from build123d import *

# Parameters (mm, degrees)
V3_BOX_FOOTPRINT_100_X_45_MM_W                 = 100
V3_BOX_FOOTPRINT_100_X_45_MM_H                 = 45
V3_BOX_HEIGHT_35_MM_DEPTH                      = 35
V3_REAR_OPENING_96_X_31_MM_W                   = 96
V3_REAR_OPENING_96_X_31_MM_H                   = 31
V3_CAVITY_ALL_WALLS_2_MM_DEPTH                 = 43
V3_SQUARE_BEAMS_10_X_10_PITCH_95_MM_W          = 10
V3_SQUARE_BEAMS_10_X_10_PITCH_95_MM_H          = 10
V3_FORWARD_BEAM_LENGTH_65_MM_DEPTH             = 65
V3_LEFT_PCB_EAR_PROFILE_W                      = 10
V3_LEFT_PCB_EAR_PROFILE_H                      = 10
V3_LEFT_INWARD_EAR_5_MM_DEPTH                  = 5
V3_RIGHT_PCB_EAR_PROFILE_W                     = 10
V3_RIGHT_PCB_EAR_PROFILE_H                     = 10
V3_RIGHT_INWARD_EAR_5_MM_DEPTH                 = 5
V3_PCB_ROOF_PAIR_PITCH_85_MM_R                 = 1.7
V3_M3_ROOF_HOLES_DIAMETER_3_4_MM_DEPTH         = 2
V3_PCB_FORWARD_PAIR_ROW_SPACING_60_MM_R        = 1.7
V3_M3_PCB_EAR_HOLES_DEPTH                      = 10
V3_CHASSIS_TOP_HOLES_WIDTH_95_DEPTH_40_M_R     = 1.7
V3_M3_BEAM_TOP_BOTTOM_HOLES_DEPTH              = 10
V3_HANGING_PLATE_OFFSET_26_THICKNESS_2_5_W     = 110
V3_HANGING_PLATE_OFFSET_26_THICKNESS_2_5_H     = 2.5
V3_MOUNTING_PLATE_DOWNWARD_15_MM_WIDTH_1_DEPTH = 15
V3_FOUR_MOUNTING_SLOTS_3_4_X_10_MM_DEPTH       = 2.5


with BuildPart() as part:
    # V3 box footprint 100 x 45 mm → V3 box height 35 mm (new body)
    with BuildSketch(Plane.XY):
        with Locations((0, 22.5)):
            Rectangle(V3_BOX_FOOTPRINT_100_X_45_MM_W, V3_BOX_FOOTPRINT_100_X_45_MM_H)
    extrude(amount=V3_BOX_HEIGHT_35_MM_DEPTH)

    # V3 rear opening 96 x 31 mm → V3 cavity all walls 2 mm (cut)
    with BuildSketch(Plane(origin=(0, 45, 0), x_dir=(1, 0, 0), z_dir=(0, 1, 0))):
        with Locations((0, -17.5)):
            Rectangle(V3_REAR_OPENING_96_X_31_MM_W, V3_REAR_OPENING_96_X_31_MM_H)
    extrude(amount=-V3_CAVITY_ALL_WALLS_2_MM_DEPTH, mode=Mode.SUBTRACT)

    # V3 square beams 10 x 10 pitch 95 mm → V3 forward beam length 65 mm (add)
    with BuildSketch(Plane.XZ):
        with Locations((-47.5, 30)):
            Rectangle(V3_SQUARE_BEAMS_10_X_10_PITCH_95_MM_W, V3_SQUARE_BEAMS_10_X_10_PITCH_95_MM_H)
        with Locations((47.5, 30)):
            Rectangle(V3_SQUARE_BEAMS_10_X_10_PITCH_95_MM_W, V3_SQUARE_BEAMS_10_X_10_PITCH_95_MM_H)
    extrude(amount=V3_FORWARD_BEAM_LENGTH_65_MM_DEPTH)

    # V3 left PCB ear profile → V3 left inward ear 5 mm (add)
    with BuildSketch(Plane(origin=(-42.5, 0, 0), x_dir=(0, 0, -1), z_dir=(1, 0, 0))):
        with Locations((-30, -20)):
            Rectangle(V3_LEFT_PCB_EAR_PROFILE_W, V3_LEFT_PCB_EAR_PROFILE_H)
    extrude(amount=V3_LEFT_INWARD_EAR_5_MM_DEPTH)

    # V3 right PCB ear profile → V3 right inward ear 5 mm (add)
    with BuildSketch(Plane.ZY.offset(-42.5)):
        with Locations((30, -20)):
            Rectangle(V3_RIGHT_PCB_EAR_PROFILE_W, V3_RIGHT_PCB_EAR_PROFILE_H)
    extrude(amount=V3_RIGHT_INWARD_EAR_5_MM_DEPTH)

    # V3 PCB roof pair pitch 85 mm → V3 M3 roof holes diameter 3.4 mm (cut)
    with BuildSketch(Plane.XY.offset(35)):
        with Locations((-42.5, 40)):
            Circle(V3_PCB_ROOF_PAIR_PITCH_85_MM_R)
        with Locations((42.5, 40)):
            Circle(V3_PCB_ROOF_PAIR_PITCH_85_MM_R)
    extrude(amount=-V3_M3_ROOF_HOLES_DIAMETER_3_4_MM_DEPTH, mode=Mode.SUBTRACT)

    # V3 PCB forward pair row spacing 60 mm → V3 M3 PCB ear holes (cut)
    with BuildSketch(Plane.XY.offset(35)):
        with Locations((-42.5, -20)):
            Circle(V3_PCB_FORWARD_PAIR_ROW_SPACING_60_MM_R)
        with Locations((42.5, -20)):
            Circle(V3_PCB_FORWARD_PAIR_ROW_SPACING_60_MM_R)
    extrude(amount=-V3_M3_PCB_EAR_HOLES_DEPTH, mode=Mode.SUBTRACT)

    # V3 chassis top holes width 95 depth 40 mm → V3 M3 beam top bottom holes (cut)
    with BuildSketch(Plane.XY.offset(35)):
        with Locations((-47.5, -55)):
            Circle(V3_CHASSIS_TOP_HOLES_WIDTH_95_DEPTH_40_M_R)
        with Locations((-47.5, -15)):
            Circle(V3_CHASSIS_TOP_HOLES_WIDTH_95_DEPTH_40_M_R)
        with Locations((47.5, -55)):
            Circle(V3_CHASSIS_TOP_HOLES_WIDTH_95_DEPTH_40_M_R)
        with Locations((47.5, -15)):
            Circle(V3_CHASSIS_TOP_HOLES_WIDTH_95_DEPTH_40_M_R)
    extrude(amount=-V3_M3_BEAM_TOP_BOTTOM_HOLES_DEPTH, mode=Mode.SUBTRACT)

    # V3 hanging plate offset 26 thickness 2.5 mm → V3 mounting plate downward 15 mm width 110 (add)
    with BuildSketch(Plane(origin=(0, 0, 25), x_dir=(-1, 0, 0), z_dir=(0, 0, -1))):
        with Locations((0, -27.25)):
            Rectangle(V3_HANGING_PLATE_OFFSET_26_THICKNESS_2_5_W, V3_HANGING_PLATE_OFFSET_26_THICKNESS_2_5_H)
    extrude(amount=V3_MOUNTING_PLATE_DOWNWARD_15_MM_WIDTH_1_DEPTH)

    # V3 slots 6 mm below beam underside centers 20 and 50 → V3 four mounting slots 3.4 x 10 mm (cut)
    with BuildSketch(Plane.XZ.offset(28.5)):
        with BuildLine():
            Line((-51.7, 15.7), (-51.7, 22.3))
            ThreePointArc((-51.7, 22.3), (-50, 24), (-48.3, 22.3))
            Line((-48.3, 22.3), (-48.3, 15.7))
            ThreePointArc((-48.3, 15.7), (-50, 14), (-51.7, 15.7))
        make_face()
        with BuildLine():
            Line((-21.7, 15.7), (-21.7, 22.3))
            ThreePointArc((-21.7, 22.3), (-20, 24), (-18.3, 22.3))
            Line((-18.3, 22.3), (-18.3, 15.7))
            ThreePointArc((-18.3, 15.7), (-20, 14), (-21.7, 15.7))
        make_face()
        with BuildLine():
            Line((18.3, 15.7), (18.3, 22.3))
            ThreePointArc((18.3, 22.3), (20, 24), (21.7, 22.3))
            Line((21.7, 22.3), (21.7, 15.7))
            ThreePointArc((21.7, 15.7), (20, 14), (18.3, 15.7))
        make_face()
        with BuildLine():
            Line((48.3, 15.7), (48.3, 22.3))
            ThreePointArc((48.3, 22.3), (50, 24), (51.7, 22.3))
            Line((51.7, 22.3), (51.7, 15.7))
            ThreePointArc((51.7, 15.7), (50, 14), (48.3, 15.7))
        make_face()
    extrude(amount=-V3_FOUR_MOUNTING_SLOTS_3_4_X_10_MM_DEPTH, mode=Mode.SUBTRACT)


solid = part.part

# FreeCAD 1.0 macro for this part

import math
import FreeCAD as App
import Part
import Sketcher


def add_polygon(sketch, points):
    """Adds a closed chain of lines whose ends are joined by coincident constraints."""
    first, n = sketch.GeometryCount, len(points)
    for a, b in zip(points, points[1:] + points[:1]):
        sketch.addGeometry(Part.LineSegment(App.Vector(*a, 0), App.Vector(*b, 0)), False)
    for i in range(n):
        sketch.addConstraint(Sketcher.Constraint("Coincident", first + i, 2, first + (i + 1) % n, 1))

doc = App.newDocument("Part")
body = doc.addObject("PartDesign::Body", "Body")

sketch1 = body.newObject("Sketcher::SketchObject", "Sketch")
sketch1.AttachmentSupport = (doc.getObject("XY_Plane"), [""])
sketch1.MapMode = "FlatFace"
add_polygon(sketch1, [(-50, 45), (-50, 0), (50, 0), (50, 45)])
sketch1.addConstraint([
    Sketcher.Constraint("Vertical", 0),
    Sketcher.Constraint("Horizontal", 1),
    Sketcher.Constraint("Vertical", 2),
    Sketcher.Constraint("Horizontal", 3),
    Sketcher.Constraint("Symmetric", 0, 2, 1, 2, -1, 1),
    Sketcher.Constraint("DistanceX", 1, 1, 1, 2, 100.0),
    Sketcher.Constraint("DistanceY", 0, 2, 0, 1, 45.0),
])
pad1 = body.newObject("PartDesign::Pad", "Pad")
pad1.Profile = sketch1
pad1.Length = 35

sketch2 = body.newObject("Sketcher::SketchObject", "Sketch001")
sketch2.AttachmentSupport = (doc.getObject("XZ_Plane"), [""])
sketch2.MapMode = "FlatFace"
sketch2.AttachmentOffset = App.Placement(App.Vector(0, 0, -45), App.Rotation())
add_polygon(sketch2, [(-48, 2), (-48, 33), (48, 33), (48, 2)])
sketch2.addConstraint([
    Sketcher.Constraint("Vertical", 0),
    Sketcher.Constraint("Horizontal", 1),
    Sketcher.Constraint("Vertical", 2),
    Sketcher.Constraint("Horizontal", 3),
    Sketcher.Constraint("DistanceX", 1, 1, 1, 2, 96.0),
    Sketcher.Constraint("DistanceY", 0, 1, 0, 2, 31.0),
    Sketcher.Constraint("DistanceX", 0, 2, -1, 1, 48.0),
    Sketcher.Constraint("DistanceY", -1, 1, 0, 2, 33.0),
])
pocket1 = body.newObject("PartDesign::Pocket", "Pocket")
pocket1.Profile = sketch2
pocket1.Length = 43
pocket1.Reversed = True

sketch3 = body.newObject("Sketcher::SketchObject", "Sketch002")
sketch3.AttachmentSupport = (doc.getObject("XZ_Plane"), [""])
sketch3.MapMode = "FlatFace"
add_polygon(sketch3, [(-52, 35), (-52, 25), (-42, 25), (-42, 35)])
add_polygon(sketch3, [(42, 35), (42, 25), (52, 25), (52, 35)])
sketch3.addConstraint([
    Sketcher.Constraint("Vertical", 0),
    Sketcher.Constraint("Horizontal", 1),
    Sketcher.Constraint("Vertical", 2),
    Sketcher.Constraint("Horizontal", 3),
    Sketcher.Constraint("Vertical", 4),
    Sketcher.Constraint("Horizontal", 5),
    Sketcher.Constraint("Vertical", 6),
    Sketcher.Constraint("Horizontal", 7),
    Sketcher.Constraint("Symmetric", 1, 2, 4, 2, -2),
    Sketcher.Constraint("Symmetric", 3, 2, 6, 2, -2),
    Sketcher.Constraint("Equal", 7, 0),
    Sketcher.Constraint("DistanceX", 1, 1, 1, 2, 10.0),
    Sketcher.Constraint("DistanceY", -1, 1, 0, 2, 25.0),
    Sketcher.Constraint("DistanceX", 1, 2, 4, 2, 85.0),
])
pad2 = body.newObject("PartDesign::Pad", "Pad001")
pad2.Profile = sketch3
pad2.Length = 65

sketch4 = body.newObject("Sketcher::SketchObject", "Sketch003")
sketch4.AttachmentSupport = (doc.getObject("YZ_Plane"), [""])
sketch4.MapMode = "FlatFace"
sketch4.AttachmentOffset = App.Placement(App.Vector(0, 0, -42.5), App.Rotation())
add_polygon(sketch4, [(-15, 35), (-25, 35), (-25, 25), (-15, 25)])
sketch4.addConstraint([
    Sketcher.Constraint("Horizontal", 0),
    Sketcher.Constraint("Vertical", 1),
    Sketcher.Constraint("Horizontal", 2),
    Sketcher.Constraint("Vertical", 3),
    Sketcher.Constraint("Equal", 2, 1),
    Sketcher.Constraint("DistanceX", 0, 2, 0, 1, 10.0),
    Sketcher.Constraint("DistanceX", 0, 2, -1, 1, 25.0),
    Sketcher.Constraint("DistanceY", -1, 1, 0, 2, 35.0),
])
pad3 = body.newObject("PartDesign::Pad", "Pad002")
pad3.Profile = sketch4
pad3.Length = 5

sketch5 = body.newObject("Sketcher::SketchObject", "Sketch004")
sketch5.AttachmentSupport = (doc.getObject("YZ_Plane"), [""])
sketch5.MapMode = "FlatFace"
sketch5.AttachmentOffset = App.Placement(App.Vector(0, 0, 42.5), App.Rotation())
add_polygon(sketch5, [(-15, 25), (-25, 25), (-25, 35), (-15, 35)])
sketch5.addConstraint([
    Sketcher.Constraint("Horizontal", 0),
    Sketcher.Constraint("Vertical", 1),
    Sketcher.Constraint("Horizontal", 2),
    Sketcher.Constraint("Vertical", 3),
    Sketcher.Constraint("Equal", 2, 1),
    Sketcher.Constraint("DistanceX", 0, 2, 0, 1, 10.0),
    Sketcher.Constraint("DistanceX", 0, 2, -1, 1, 25.0),
    Sketcher.Constraint("DistanceY", -1, 1, 0, 2, 25.0),
])
pad4 = body.newObject("PartDesign::Pad", "Pad003")
pad4.Profile = sketch5
pad4.Length = 5
pad4.Reversed = True

sketch6 = body.newObject("Sketcher::SketchObject", "Sketch005")
sketch6.AttachmentSupport = (doc.getObject("XY_Plane"), [""])
sketch6.MapMode = "FlatFace"
sketch6.AttachmentOffset = App.Placement(App.Vector(0, 0, 35), App.Rotation())
sketch6.addGeometry([
    Part.Circle(App.Vector(-42.5, 40, 0), App.Vector(0, 0, 1), 1.7),
    Part.Circle(App.Vector(42.5, 40, 0), App.Vector(0, 0, 1), 1.7),
], False)
sketch6.addConstraint([
    Sketcher.Constraint("Equal", 0, 1),
    Sketcher.Constraint("Symmetric", 0, 3, 1, 3, -2),
    Sketcher.Constraint("Diameter", 0, 3.4),
    Sketcher.Constraint("DistanceY", -1, 1, 0, 3, 40.0),
    Sketcher.Constraint("DistanceX", 0, 3, 1, 3, 85.0),
])
pocket2 = body.newObject("PartDesign::Pocket", "Pocket001")
pocket2.Profile = sketch6
pocket2.Length = 2

sketch7 = body.newObject("Sketcher::SketchObject", "Sketch006")
sketch7.AttachmentSupport = (doc.getObject("XY_Plane"), [""])
sketch7.MapMode = "FlatFace"
sketch7.AttachmentOffset = App.Placement(App.Vector(0, 0, 35), App.Rotation())
sketch7.addGeometry([
    Part.Circle(App.Vector(-42.5, -20, 0), App.Vector(0, 0, 1), 1.7),
    Part.Circle(App.Vector(42.5, -20, 0), App.Vector(0, 0, 1), 1.7),
], False)
sketch7.addConstraint([
    Sketcher.Constraint("Equal", 0, 1),
    Sketcher.Constraint("Symmetric", 0, 3, 1, 3, -2),
    Sketcher.Constraint("Diameter", 0, 3.4),
    Sketcher.Constraint("DistanceY", 0, 3, -1, 1, 20.0),
    Sketcher.Constraint("DistanceX", 0, 3, 1, 3, 85.0),
])
pocket3 = body.newObject("PartDesign::Pocket", "Pocket002")
pocket3.Profile = sketch7
pocket3.Length = 10

sketch8 = body.newObject("Sketcher::SketchObject", "Sketch007")
sketch8.AttachmentSupport = (doc.getObject("XY_Plane"), [""])
sketch8.MapMode = "FlatFace"
sketch8.AttachmentOffset = App.Placement(App.Vector(0, 0, 35), App.Rotation())
sketch8.addGeometry([
    Part.Circle(App.Vector(-47.5, -55, 0), App.Vector(0, 0, 1), 1.7),
    Part.Circle(App.Vector(-47.5, -15, 0), App.Vector(0, 0, 1), 1.7),
    Part.Circle(App.Vector(47.5, -55, 0), App.Vector(0, 0, 1), 1.7),
    Part.Circle(App.Vector(47.5, -15, 0), App.Vector(0, 0, 1), 1.7),
], False)
sketch8.addConstraint([
    Sketcher.Constraint("Equal", 0, 1),
    Sketcher.Constraint("Equal", 1, 2),
    Sketcher.Constraint("Equal", 2, 3),
    Sketcher.Constraint("Symmetric", 0, 3, 2, 3, -2),
    Sketcher.Constraint("Symmetric", 1, 3, 3, 3, -2),
    Sketcher.Constraint("Vertical", 0, 3, 1, 3),
    Sketcher.Constraint("Diameter", 0, 3.4),
    Sketcher.Constraint("DistanceY", 0, 3, -1, 1, 55.0),
    Sketcher.Constraint("DistanceY", 1, 3, -1, 1, 15.0),
    Sketcher.Constraint("DistanceX", 0, 3, 2, 3, 95.0),
])
pocket4 = body.newObject("PartDesign::Pocket", "Pocket003")
pocket4.Profile = sketch8
pocket4.Length = 10

sketch9 = body.newObject("Sketcher::SketchObject", "Sketch008")
sketch9.AttachmentSupport = (doc.getObject("XY_Plane"), [""])
sketch9.MapMode = "FlatFace"
sketch9.AttachmentOffset = App.Placement(App.Vector(0, 0, 25), App.Rotation())
add_polygon(sketch9, [(55, -26), (55, -28.5), (-55, -28.5), (-55, -26)])
sketch9.addConstraint([
    Sketcher.Constraint("Vertical", 0),
    Sketcher.Constraint("Horizontal", 1),
    Sketcher.Constraint("Vertical", 2),
    Sketcher.Constraint("Horizontal", 3),
    Sketcher.Constraint("DistanceX", 1, 2, 1, 1, 110.0),
    Sketcher.Constraint("DistanceY", 0, 2, 0, 1, 2.5),
    Sketcher.Constraint("DistanceX", -1, 1, 0, 2, 55.0),
    Sketcher.Constraint("DistanceY", 2, 2, -1, 1, 26.0),
])
pad5 = body.newObject("PartDesign::Pad", "Pad004")
pad5.Profile = sketch9
pad5.Length = 15
pad5.Reversed = True

sketch10 = body.newObject("Sketcher::SketchObject", "Sketch009")
sketch10.AttachmentSupport = (doc.getObject("XZ_Plane"), [""])
sketch10.MapMode = "FlatFace"
sketch10.AttachmentOffset = App.Placement(App.Vector(0, 0, 28.5), App.Rotation())
sketch10.addGeometry([
    Part.LineSegment(App.Vector(-51.7, 22.3, 0), App.Vector(-51.7, 15.7, 0)),
    Part.ArcOfCircle(Part.Circle(App.Vector(-50, 15.7, 0), App.Vector(0, 0, 1), 1.7), math.radians(180), math.radians(360)),
    Part.LineSegment(App.Vector(-48.3, 15.7, 0), App.Vector(-48.3, 22.3, 0)),
    Part.ArcOfCircle(Part.Circle(App.Vector(-50, 22.3, 0), App.Vector(0, 0, 1), 1.7), math.radians(0), math.radians(180)),
    Part.LineSegment(App.Vector(-21.7, 22.3, 0), App.Vector(-21.7, 15.7, 0)),
    Part.ArcOfCircle(Part.Circle(App.Vector(-20, 15.7, 0), App.Vector(0, 0, 1), 1.7), math.radians(180), math.radians(360)),
    Part.LineSegment(App.Vector(-18.3, 15.7, 0), App.Vector(-18.3, 22.3, 0)),
    Part.ArcOfCircle(Part.Circle(App.Vector(-20, 22.3, 0), App.Vector(0, 0, 1), 1.7), math.radians(0), math.radians(180)),
    Part.LineSegment(App.Vector(18.3, 22.3, 0), App.Vector(18.3, 15.7, 0)),
    Part.ArcOfCircle(Part.Circle(App.Vector(20, 15.7, 0), App.Vector(0, 0, 1), 1.7), math.radians(180), math.radians(360)),
    Part.LineSegment(App.Vector(21.7, 15.7, 0), App.Vector(21.7, 22.3, 0)),
    Part.ArcOfCircle(Part.Circle(App.Vector(20, 22.3, 0), App.Vector(0, 0, 1), 1.7), math.radians(0), math.radians(180)),
    Part.LineSegment(App.Vector(48.3, 22.3, 0), App.Vector(48.3, 15.7, 0)),
    Part.ArcOfCircle(Part.Circle(App.Vector(50, 15.7, 0), App.Vector(0, 0, 1), 1.7), math.radians(180), math.radians(360)),
    Part.LineSegment(App.Vector(51.7, 15.7, 0), App.Vector(51.7, 22.3, 0)),
    Part.ArcOfCircle(Part.Circle(App.Vector(50, 22.3, 0), App.Vector(0, 0, 1), 1.7), math.radians(0), math.radians(180)),
], False)
sketch10.addConstraint([
    Sketcher.Constraint("Tangent", 0, 2, 1, 1),
    Sketcher.Constraint("Tangent", 1, 2, 2, 1),
    Sketcher.Constraint("Tangent", 2, 2, 3, 1),
    Sketcher.Constraint("Tangent", 3, 2, 0, 1),
    Sketcher.Constraint("Tangent", 4, 2, 5, 1),
    Sketcher.Constraint("Tangent", 5, 2, 6, 1),
    Sketcher.Constraint("Tangent", 6, 2, 7, 1),
    Sketcher.Constraint("Tangent", 7, 2, 4, 1),
    Sketcher.Constraint("Tangent", 8, 2, 9, 1),
    Sketcher.Constraint("Tangent", 9, 2, 10, 1),
    Sketcher.Constraint("Tangent", 10, 2, 11, 1),
    Sketcher.Constraint("Tangent", 11, 2, 8, 1),
    Sketcher.Constraint("Tangent", 12, 2, 13, 1),
    Sketcher.Constraint("Tangent", 13, 2, 14, 1),
    Sketcher.Constraint("Tangent", 14, 2, 15, 1),
    Sketcher.Constraint("Tangent", 15, 2, 12, 1),
    Sketcher.Constraint("Vertical", 0),
    Sketcher.Constraint("Vertical", 2),
    Sketcher.Constraint("Vertical", 4),
    Sketcher.Constraint("Vertical", 6),
    Sketcher.Constraint("Vertical", 8),
    Sketcher.Constraint("Vertical", 10),
    Sketcher.Constraint("Vertical", 12),
    Sketcher.Constraint("Vertical", 14),
    Sketcher.Constraint("Equal", 3, 5),
    Sketcher.Constraint("Equal", 7, 9),
    Sketcher.Constraint("Equal", 11, 13),
    Sketcher.Constraint("Symmetric", 5, 3, 9, 3, -2),
    Sketcher.Constraint("Symmetric", 1, 3, 13, 3, -2),
    Sketcher.Constraint("Horizontal", 1, 3, 5, 3),
    Sketcher.Constraint("Horizontal", 3, 3, 7, 3),
    Sketcher.Constraint("Horizontal", 7, 3, 11, 3),
    Sketcher.Constraint("Horizontal", 11, 3, 15, 3),
    Sketcher.Constraint("Radius", 1, 1.7),
    Sketcher.Constraint("DistanceY", 0, 2, 0, 1, 6.6),
    Sketcher.Constraint("DistanceX", 1, 3, -1, 1, 50.0),
    Sketcher.Constraint("DistanceX", 5, 3, -1, 1, 20.0),
    Sketcher.Constraint("DistanceY", -1, 1, 1, 3, 15.7),
])
pocket5 = body.newObject("PartDesign::Pocket", "Pocket004")
pocket5.Profile = sketch10
pocket5.Length = 2.5

doc.recompute()
